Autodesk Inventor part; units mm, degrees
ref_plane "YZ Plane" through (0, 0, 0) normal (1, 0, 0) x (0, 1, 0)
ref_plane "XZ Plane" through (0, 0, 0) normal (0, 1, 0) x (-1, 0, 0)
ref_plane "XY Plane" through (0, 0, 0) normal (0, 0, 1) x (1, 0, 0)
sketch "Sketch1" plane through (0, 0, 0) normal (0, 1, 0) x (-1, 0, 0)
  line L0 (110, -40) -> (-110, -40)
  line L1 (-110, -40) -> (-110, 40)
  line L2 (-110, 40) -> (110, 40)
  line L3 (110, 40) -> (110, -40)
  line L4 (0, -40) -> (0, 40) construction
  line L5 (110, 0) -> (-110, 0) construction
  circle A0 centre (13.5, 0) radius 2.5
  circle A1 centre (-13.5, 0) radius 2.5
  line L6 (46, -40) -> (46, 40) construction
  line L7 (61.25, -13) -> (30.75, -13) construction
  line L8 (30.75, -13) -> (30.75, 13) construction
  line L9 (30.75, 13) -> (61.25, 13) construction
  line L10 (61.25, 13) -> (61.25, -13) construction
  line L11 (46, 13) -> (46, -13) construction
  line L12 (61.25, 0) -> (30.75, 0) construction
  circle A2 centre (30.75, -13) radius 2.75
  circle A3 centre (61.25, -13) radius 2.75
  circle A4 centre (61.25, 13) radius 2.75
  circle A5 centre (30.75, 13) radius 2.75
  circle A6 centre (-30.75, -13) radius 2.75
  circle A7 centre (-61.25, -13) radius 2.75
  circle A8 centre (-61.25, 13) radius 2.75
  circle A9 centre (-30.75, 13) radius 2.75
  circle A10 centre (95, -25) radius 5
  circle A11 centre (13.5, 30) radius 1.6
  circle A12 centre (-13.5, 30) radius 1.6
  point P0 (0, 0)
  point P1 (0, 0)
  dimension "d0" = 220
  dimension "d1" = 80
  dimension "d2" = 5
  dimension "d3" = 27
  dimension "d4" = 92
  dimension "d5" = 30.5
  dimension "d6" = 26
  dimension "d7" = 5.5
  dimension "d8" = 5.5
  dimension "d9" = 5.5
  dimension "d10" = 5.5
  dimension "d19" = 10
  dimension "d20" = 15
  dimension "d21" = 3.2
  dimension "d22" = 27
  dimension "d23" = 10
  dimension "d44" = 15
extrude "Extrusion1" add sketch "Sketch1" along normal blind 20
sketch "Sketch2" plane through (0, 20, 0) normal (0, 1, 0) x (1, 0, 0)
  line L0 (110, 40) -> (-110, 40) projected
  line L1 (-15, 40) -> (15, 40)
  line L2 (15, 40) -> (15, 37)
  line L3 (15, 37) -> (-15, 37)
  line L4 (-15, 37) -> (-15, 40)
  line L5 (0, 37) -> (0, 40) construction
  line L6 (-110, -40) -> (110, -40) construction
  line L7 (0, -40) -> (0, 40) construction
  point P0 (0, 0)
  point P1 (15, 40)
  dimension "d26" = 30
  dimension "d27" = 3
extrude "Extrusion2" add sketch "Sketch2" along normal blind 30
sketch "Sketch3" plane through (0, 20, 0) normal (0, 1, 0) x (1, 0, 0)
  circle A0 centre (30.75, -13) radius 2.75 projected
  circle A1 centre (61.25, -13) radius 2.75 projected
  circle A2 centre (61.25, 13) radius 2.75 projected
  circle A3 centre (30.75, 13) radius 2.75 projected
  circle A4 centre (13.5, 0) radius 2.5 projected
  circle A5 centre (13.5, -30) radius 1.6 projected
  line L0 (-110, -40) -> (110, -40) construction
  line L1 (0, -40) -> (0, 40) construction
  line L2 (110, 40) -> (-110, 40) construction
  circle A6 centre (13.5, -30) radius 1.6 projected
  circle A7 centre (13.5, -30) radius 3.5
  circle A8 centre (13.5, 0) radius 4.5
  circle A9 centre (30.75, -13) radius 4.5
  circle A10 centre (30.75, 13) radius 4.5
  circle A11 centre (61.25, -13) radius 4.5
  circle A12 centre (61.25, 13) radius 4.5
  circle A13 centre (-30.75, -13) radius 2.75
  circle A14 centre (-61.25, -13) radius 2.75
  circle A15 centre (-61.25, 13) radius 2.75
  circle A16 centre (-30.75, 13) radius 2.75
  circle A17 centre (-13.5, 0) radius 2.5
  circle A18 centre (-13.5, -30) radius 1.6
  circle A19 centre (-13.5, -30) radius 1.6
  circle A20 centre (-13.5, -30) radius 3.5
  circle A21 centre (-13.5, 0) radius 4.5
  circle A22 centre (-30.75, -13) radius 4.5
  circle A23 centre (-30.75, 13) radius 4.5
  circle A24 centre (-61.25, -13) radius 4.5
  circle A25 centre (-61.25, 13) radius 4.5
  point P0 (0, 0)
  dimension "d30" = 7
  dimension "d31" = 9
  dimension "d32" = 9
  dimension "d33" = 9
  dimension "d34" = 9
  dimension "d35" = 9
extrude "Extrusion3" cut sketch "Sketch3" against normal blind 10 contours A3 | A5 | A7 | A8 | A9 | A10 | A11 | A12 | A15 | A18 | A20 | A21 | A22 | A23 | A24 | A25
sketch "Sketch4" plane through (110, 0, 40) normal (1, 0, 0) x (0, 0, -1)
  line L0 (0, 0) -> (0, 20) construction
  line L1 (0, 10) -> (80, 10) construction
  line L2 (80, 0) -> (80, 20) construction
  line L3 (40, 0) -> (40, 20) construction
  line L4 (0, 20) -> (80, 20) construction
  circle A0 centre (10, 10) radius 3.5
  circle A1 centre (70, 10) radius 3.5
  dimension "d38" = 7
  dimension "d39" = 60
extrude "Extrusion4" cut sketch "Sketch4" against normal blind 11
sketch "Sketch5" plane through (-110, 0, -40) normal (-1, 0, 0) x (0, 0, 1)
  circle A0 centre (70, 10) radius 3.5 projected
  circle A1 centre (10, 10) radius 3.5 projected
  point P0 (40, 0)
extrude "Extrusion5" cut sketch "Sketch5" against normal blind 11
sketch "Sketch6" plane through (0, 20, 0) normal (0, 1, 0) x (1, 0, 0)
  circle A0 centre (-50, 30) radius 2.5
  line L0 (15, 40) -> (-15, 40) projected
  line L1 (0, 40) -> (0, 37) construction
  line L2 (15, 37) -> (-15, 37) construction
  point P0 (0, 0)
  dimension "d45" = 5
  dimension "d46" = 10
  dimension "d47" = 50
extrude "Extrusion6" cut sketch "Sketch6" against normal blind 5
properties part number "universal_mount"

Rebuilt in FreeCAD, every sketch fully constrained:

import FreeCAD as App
import Part
import Sketcher

V = App.Vector


def add_polygon(sketch, points):
    """Adds a closed chain of lines whose ends are joined by coincident constraints."""
    first, n = sketch.GeometryCount, len(points)
    for a, b in zip(points, points[1:] + points[:1]):
        sketch.addGeometry(Part.LineSegment(App.Vector(*a, 0), App.Vector(*b, 0)), False)
    for i in range(n):
        sketch.addConstraint(Sketcher.Constraint("Coincident", first + i, 2, first + (i + 1) % n, 1))

doc = App.newDocument("Part")
params = doc.addObject("Spreadsheet::Sheet", "Params")
for row, (alias, value) in enumerate([
    ("sketch1_diameter", "10 mm"),
    ("sketch1_diameter2", "5 mm"),
    ("sketch1_diameter3", "5.5 mm"),
    ("sketch1_diameter4", "3.2 mm"),
    ("sketch1_width", "220 mm"),
    ("pad1_length", "20 mm"),
    ("sketch2_width", "30 mm"),
    ("sketch2_height", "3 mm"),
    ("pad2_length", "30 mm"),
    ("sketch3_diameter", "9 mm"),
    ("sketch3_diameter2", "7 mm"),
    ("sketch3_diameter3", "5 mm"),
    ("sketch3_diameter4", "5.5 mm"),
    ("pocket1_length", "10 mm"),
    ("sketch4_diameter", "7 mm"),
    ("pocket2_length", "11 mm"),
    ("sketch5_diameter", "7 mm"),
    ("pocket3_length", "11 mm"),
    ("sketch6_diameter", "5 mm"),
    ("pocket4_length", "5 mm"),
], start=1):
    params.set(f"A{row}", alias)
    params.set(f"B{row}", "=" + value)
    params.setAlias(f"B{row}", alias)

body = doc.addObject("PartDesign::Body", "Body")

sketch1 = body.newObject("Sketcher::SketchObject", "Sketch")
sketch1.AttachmentSupport = (doc.getObject("XZ_Plane"), [""])
sketch1.MapMode = "FlatFace"
add_polygon(sketch1, [(110, -40), (-110, -40), (-110, 40), (110, 40)])
sketch1.addGeometry(Part.Circle(V(61.2, -13, 0), V(0, 0, 1), 2.8), False)
sketch1.addGeometry(Part.Circle(V(30.8, -13, 0), V(0, 0, 1), 2.8), False)
sketch1.addGeometry(Part.Circle(V(-95, -25, 0), V(0, 0, 1), 5), False)
sketch1.addGeometry(Part.Circle(V(-30.8, -13, 0), V(0, 0, 1), 2.8), False)
sketch1.addGeometry(Part.Circle(V(-61.2, -13, 0), V(0, 0, 1), 2.8), False)
sketch1.addGeometry(Part.Circle(V(61.2, 13, 0), V(0, 0, 1), 2.8), False)
sketch1.addGeometry(Part.Circle(V(13.5, 0, 0), V(0, 0, 1), 2.5), False)
sketch1.addGeometry(Part.Circle(V(30.8, 13, 0), V(0, 0, 1), 2.8), False)
sketch1.addGeometry(Part.Circle(V(13.5, 30, 0), V(0, 0, 1), 1.6), False)
sketch1.addGeometry(Part.Circle(V(-13.5, 0, 0), V(0, 0, 1), 2.5), False)
sketch1.addGeometry(Part.Circle(V(-30.8, 13, 0), V(0, 0, 1), 2.8), False)
sketch1.addGeometry(Part.Circle(V(-61.2, 13, 0), V(0, 0, 1), 2.8), False)
sketch1.addGeometry(Part.Circle(V(-13.5, 30, 0), V(0, 0, 1), 1.6), False)
sketch1.addConstraint(Sketcher.Constraint("Horizontal", 0))
sketch1.addConstraint(Sketcher.Constraint("Vertical", 1))
sketch1.addConstraint(Sketcher.Constraint("Horizontal", 2))
sketch1.addConstraint(Sketcher.Constraint("Vertical", 3))
sketch1.addConstraint(Sketcher.Constraint("Equal", 4, 5))
sketch1.addConstraint(Sketcher.Constraint("Equal", 5, 7))
sketch1.addConstraint(Sketcher.Constraint("Equal", 7, 8))
sketch1.addConstraint(Sketcher.Constraint("Equal", 8, 9))
sketch1.addConstraint(Sketcher.Constraint("Equal", 9, 11))
sketch1.addConstraint(Sketcher.Constraint("Equal", 10, 13))
sketch1.addConstraint(Sketcher.Constraint("Equal", 11, 14))
sketch1.addConstraint(Sketcher.Constraint("Equal", 14, 15))
sketch1.addConstraint(Sketcher.Constraint("Equal", 12, 16))
sketch1.addConstraint(Sketcher.Constraint("Symmetric", 8, 3, 9, 3, -1, 1))
sketch1.addConstraint(Sketcher.Constraint("Symmetric", 7, 3, 11, 3, -1, 1))
sketch1.addConstraint(Sketcher.Constraint("Symmetric", 10, 3, 13, 3, -1, 1))
sketch1.addConstraint(Sketcher.Constraint("Symmetric", 5, 3, 14, 3, -1, 1))
sketch1.addConstraint(Sketcher.Constraint("Symmetric", 4, 3, 15, 3, -1, 1))
sketch1.addConstraint(Sketcher.Constraint("Symmetric", 0, 2, 2, 2, -1, 1))
sketch1.addConstraint(Sketcher.Constraint("Symmetric", 5, 3, 7, 3, -2))
sketch1.addConstraint(Sketcher.Constraint("Symmetric", 4, 3, 8, 3, -2))
sketch1.addConstraint(Sketcher.Constraint("Symmetric", 12, 3, 16, 3, -2))
sketch1.addConstraint(Sketcher.Constraint("PointOnObject", 10, 3, -1))
sketch1.addConstraint(Sketcher.Constraint("Horizontal", 4, 3, 5, 3))
sketch1.addConstraint(Sketcher.Constraint("Vertical", 10, 3, 12, 3))
sketch1.addConstraint(Sketcher.Constraint("Diameter", 6, 10.0))
sketch1.addConstraint(Sketcher.Constraint("Diameter", 10, 5.0))
sketch1.addConstraint(Sketcher.Constraint("Diameter", 4, 5.5))
sketch1.addConstraint(Sketcher.Constraint("Diameter", 12, 3.2))
sketch1.addConstraint(Sketcher.Constraint("DistanceX", 0, 2, 0, 1, 220.0))
sketch1.addConstraint(Sketcher.Constraint("DistanceY", 1, 1, 1, 2, 80.0))
sketch1.addConstraint(Sketcher.Constraint("DistanceX", 7, 3, 4, 3, 92.0))
sketch1.addConstraint(Sketcher.Constraint("DistanceY", 4, 3, 9, 3, 26.0))
sketch1.addConstraint(Sketcher.Constraint("DistanceX", 13, 3, 10, 3, 27.0))
sketch1.addConstraint(Sketcher.Constraint("DistanceX", 0, 2, 6, 3, 15.0))
sketch1.addConstraint(Sketcher.Constraint("DistanceY", 0, 2, 6, 3, 15.0))
sketch1.addConstraint(Sketcher.Constraint("DistanceY", 12, 3, 2, 2, 10.0))
sketch1.addConstraint(Sketcher.Constraint("DistanceX", 5, 3, 4, 3, 30.5))
sketch1.setExpression("Constraints[29]", "Params.sketch1_diameter")
sketch1.setExpression("Constraints[30]", "Params.sketch1_diameter2")
sketch1.setExpression("Constraints[31]", "Params.sketch1_diameter3")
sketch1.setExpression("Constraints[32]", "Params.sketch1_diameter4")
sketch1.setExpression("Constraints[33]", "Params.sketch1_width")
pad1 = body.newObject("PartDesign::Pad", "Pad")
pad1.Profile = sketch1
pad1.setExpression("Length", "Params.pad1_length")
pad1.Reversed = True

sketch2 = body.newObject("Sketcher::SketchObject", "Sketch001")
sketch2.AttachmentSupport = (doc.getObject("XZ_Plane"), [""])
sketch2.MapMode = "FlatFace"
sketch2.AttachmentOffset = App.Placement(V(0, 0, -20), App.Rotation())
add_polygon(sketch2, [(15, -37), (15, -40), (-15, -40), (-15, -37)])
sketch2.addConstraint(Sketcher.Constraint("Vertical", 0))
sketch2.addConstraint(Sketcher.Constraint("Horizontal", 1))
sketch2.addConstraint(Sketcher.Constraint("Vertical", 2))
sketch2.addConstraint(Sketcher.Constraint("Horizontal", 3))
sketch2.addConstraint(Sketcher.Constraint("DistanceX", 1, 2, 1, 1, 30.0))
sketch2.addConstraint(Sketcher.Constraint("DistanceY", 0, 2, 0, 1, 3.0))
sketch2.addConstraint(Sketcher.Constraint("DistanceX", -1, 1, 0, 2, 15.0))
sketch2.addConstraint(Sketcher.Constraint("DistanceY", 0, 2, -1, 1, 40.0))
sketch2.setExpression("Constraints[8]", "Params.sketch2_width")
sketch2.setExpression("Constraints[9]", "Params.sketch2_height")
pad2 = body.newObject("PartDesign::Pad", "Pad001")
pad2.Profile = sketch2
pad2.setExpression("Length", "Params.pad2_length")
pad2.Reversed = True

sketch3 = body.newObject("Sketcher::SketchObject", "Sketch002")
sketch3.AttachmentSupport = (doc.getObject("XZ_Plane"), [""])
sketch3.MapMode = "FlatFace"
sketch3.AttachmentOffset = App.Placement(V(0, 0, -20), App.Rotation())
sketch3.addGeometry(Part.Circle(V(30.8, -13, 0), V(0, 0, 1), 4.5), False)
sketch3.addGeometry(Part.Circle(V(13.5, 30, 0), V(0, 0, 1), 3.5), False)
sketch3.addGeometry(Part.Circle(V(13.5, 0, 0), V(0, 0, 1), 4.5), False)
sketch3.addGeometry(Part.Circle(V(13.5, 0, 0), V(0, 0, 1), 2.5), False)
sketch3.addGeometry(Part.Circle(V(30.8, 13, 0), V(0, 0, 1), 4.5), False)
sketch3.addGeometry(Part.Circle(V(30.8, 13, 0), V(0, 0, 1), 2.8), False)
sketch3.addGeometry(Part.Circle(V(61.2, 13, 0), V(0, 0, 1), 4.5), False)
sketch3.addGeometry(Part.Circle(V(61.2, 13, 0), V(0, 0, 1), 2.8), False)
sketch3.addGeometry(Part.Circle(V(61.2, -13, 0), V(0, 0, 1), 4.5), False)
sketch3.addGeometry(Part.Circle(V(61.2, -13, 0), V(0, 0, 1), 2.8), False)
sketch3.addGeometry(Part.Circle(V(-61.2, -13, 0), V(0, 0, 1), 4.5), False)
sketch3.addGeometry(Part.Circle(V(-13.5, 30, 0), V(0, 0, 1), 3.5), False)
sketch3.addGeometry(Part.Circle(V(-13.5, 0, 0), V(0, 0, 1), 4.5), False)
sketch3.addGeometry(Part.Circle(V(-13.5, 0, 0), V(0, 0, 1), 2.5), False)
sketch3.addGeometry(Part.Circle(V(-30.8, 13, 0), V(0, 0, 1), 4.5), False)
sketch3.addGeometry(Part.Circle(V(-30.8, 13, 0), V(0, 0, 1), 2.8), False)
sketch3.addGeometry(Part.Circle(V(-30.8, -13, 0), V(0, 0, 1), 4.5), False)
sketch3.addGeometry(Part.Circle(V(-30.8, -13, 0), V(0, 0, 1), 2.8), False)
sketch3.addGeometry(Part.Circle(V(-61.2, 13, 0), V(0, 0, 1), 4.5), False)
sketch3.addGeometry(Part.Circle(V(-61.2, 13, 0), V(0, 0, 1), 2.8), False)
sketch3.addConstraint(Sketcher.Constraint("Coincident", 3, 3, 2, 3))
sketch3.addConstraint(Sketcher.Constraint("Coincident", 5, 3, 4, 3))
sketch3.addConstraint(Sketcher.Constraint("Coincident", 7, 3, 6, 3))
sketch3.addConstraint(Sketcher.Constraint("Coincident", 9, 3, 8, 3))
sketch3.addConstraint(Sketcher.Constraint("Coincident", 13, 3, 12, 3))
sketch3.addConstraint(Sketcher.Constraint("Coincident", 15, 3, 14, 3))
sketch3.addConstraint(Sketcher.Constraint("Coincident", 17, 3, 16, 3))
sketch3.addConstraint(Sketcher.Constraint("Coincident", 19, 3, 18, 3))
sketch3.addConstraint(Sketcher.Constraint("Equal", 0, 2))
sketch3.addConstraint(Sketcher.Constraint("Equal", 2, 4))
sketch3.addConstraint(Sketcher.Constraint("Equal", 4, 6))
sketch3.addConstraint(Sketcher.Constraint("Equal", 5, 7))
sketch3.addConstraint(Sketcher.Constraint("Equal", 6, 8))
sketch3.addConstraint(Sketcher.Constraint("Equal", 7, 9))
sketch3.addConstraint(Sketcher.Constraint("Equal", 8, 10))
sketch3.addConstraint(Sketcher.Constraint("Equal", 1, 11))
sketch3.addConstraint(Sketcher.Constraint("Equal", 10, 12))
sketch3.addConstraint(Sketcher.Constraint("Equal", 3, 13))
sketch3.addConstraint(Sketcher.Constraint("Equal", 12, 14))
sketch3.addConstraint(Sketcher.Constraint("Equal", 9, 15))
sketch3.addConstraint(Sketcher.Constraint("Equal", 14, 16))
sketch3.addConstraint(Sketcher.Constraint("Equal", 15, 17))
sketch3.addConstraint(Sketcher.Constraint("Equal", 16, 18))
sketch3.addConstraint(Sketcher.Constraint("Equal", 17, 19))
sketch3.addConstraint(Sketcher.Constraint("Symmetric", 6, 3, 10, 3, -1, 1))
sketch3.addConstraint(Sketcher.Constraint("Symmetric", 2, 3, 12, 3, -1, 1))
sketch3.addConstraint(Sketcher.Constraint("Symmetric", 0, 3, 14, 3, -1, 1))
sketch3.addConstraint(Sketcher.Constraint("Symmetric", 4, 3, 16, 3, -1, 1))
sketch3.addConstraint(Sketcher.Constraint("Symmetric", 8, 3, 18, 3, -1, 1))
sketch3.addConstraint(Sketcher.Constraint("Symmetric", 8, 3, 10, 3, -2))
sketch3.addConstraint(Sketcher.Constraint("Symmetric", 1, 3, 11, 3, -2))
sketch3.addConstraint(Sketcher.Constraint("Symmetric", 4, 3, 14, 3, -2))
sketch3.addConstraint(Sketcher.Constraint("PointOnObject", 2, 3, -1))
sketch3.addConstraint(Sketcher.Constraint("Horizontal", 5, 3, 6, 3))
sketch3.addConstraint(Sketcher.Constraint("Vertical", 1, 3, 2, 3))
sketch3.addConstraint(Sketcher.Constraint("Diameter", 0, 9.0))
sketch3.addConstraint(Sketcher.Constraint("Diameter", 1, 7.0))
sketch3.addConstraint(Sketcher.Constraint("Diameter", 3, 5.0))
sketch3.addConstraint(Sketcher.Constraint("Diameter", 5, 5.5))
sketch3.addConstraint(Sketcher.Constraint("DistanceY", 0, 3, -1, 1, 13.0))
sketch3.addConstraint(Sketcher.Constraint("DistanceY", -1, 1, 1, 3, 30.0))
sketch3.addConstraint(Sketcher.Constraint("DistanceX", 10, 3, 0, 3, 92.0))
sketch3.addConstraint(Sketcher.Constraint("DistanceX", 11, 3, 1, 3, 27.0))
sketch3.addConstraint(Sketcher.Constraint("DistanceX", 4, 3, 6, 3, 30.5))
sketch3.setExpression("Constraints[35]", "Params.sketch3_diameter")
sketch3.setExpression("Constraints[36]", "Params.sketch3_diameter2")
sketch3.setExpression("Constraints[37]", "Params.sketch3_diameter3")
sketch3.setExpression("Constraints[38]", "Params.sketch3_diameter4")
pocket1 = body.newObject("PartDesign::Pocket", "Pocket")
pocket1.Profile = sketch3
pocket1.setExpression("Length", "Params.pocket1_length")
pocket1.Reversed = True

sketch4 = body.newObject("Sketcher::SketchObject", "Sketch003")
sketch4.AttachmentSupport = (doc.getObject("YZ_Plane"), [""])
sketch4.MapMode = "FlatFace"
sketch4.AttachmentOffset = App.Placement(V(0, 0, 110), App.Rotation())
sketch4.addGeometry(Part.Circle(V(10, 30, 0), V(0, 0, 1), 3.5), False)
sketch4.addGeometry(Part.Circle(V(10, -30, 0), V(0, 0, 1), 3.5), False)
sketch4.addConstraint(Sketcher.Constraint("Equal", 0, 1))
sketch4.addConstraint(Sketcher.Constraint("Symmetric", 0, 3, 1, 3, -1))
sketch4.addConstraint(Sketcher.Constraint("Diameter", 0, 7.0))
sketch4.addConstraint(Sketcher.Constraint("DistanceY", 1, 3, 0, 3, 60.0))
sketch4.addConstraint(Sketcher.Constraint("DistanceX", -1, 1, 0, 3, 10.0))
sketch4.setExpression("Constraints[2]", "Params.sketch4_diameter")
pocket2 = body.newObject("PartDesign::Pocket", "Pocket001")
pocket2.Profile = sketch4
pocket2.setExpression("Length", "Params.pocket2_length")

sketch5 = body.newObject("Sketcher::SketchObject", "Sketch004")
sketch5.AttachmentSupport = (doc.getObject("YZ_Plane"), [""])
sketch5.MapMode = "FlatFace"
sketch5.AttachmentOffset = App.Placement(V(0, 0, -110), App.Rotation())
sketch5.addGeometry(Part.Circle(V(10, 30, 0), V(0, 0, 1), 3.5), False)
sketch5.addGeometry(Part.Circle(V(10, -30, 0), V(0, 0, 1), 3.5), False)
sketch5.addConstraint(Sketcher.Constraint("Equal", 0, 1))
sketch5.addConstraint(Sketcher.Constraint("Symmetric", 0, 3, 1, 3, -1))
sketch5.addConstraint(Sketcher.Constraint("Diameter", 0, 7.0))
sketch5.addConstraint(Sketcher.Constraint("DistanceX", -1, 1, 0, 3, 10.0))
sketch5.addConstraint(Sketcher.Constraint("DistanceY", -1, 1, 0, 3, 30.0))
sketch5.setExpression("Constraints[2]", "Params.sketch5_diameter")
pocket3 = body.newObject("PartDesign::Pocket", "Pocket002")
pocket3.Profile = sketch5
pocket3.setExpression("Length", "Params.pocket3_length")
pocket3.Reversed = True

sketch6 = body.newObject("Sketcher::SketchObject", "Sketch005")
sketch6.AttachmentSupport = (doc.getObject("XZ_Plane"), [""])
sketch6.MapMode = "FlatFace"
sketch6.AttachmentOffset = App.Placement(V(0, 0, -20), App.Rotation())
sketch6.addGeometry(Part.Circle(V(-50, -30, 0), V(0, 0, 1), 2.5), False)
sketch6.addConstraint(Sketcher.Constraint("Diameter", 0, 5.0))
sketch6.addConstraint(Sketcher.Constraint("DistanceX", 0, 3, -1, 1, 50.0))
sketch6.addConstraint(Sketcher.Constraint("DistanceY", 0, 3, -1, 1, 30.0))
sketch6.setExpression("Constraints[0]", "Params.sketch6_diameter")
pocket4 = body.newObject("PartDesign::Pocket", "Pocket003")
pocket4.Profile = sketch6
pocket4.setExpression("Length", "Params.pocket4_length")
pocket4.Reversed = True

doc.recompute()
